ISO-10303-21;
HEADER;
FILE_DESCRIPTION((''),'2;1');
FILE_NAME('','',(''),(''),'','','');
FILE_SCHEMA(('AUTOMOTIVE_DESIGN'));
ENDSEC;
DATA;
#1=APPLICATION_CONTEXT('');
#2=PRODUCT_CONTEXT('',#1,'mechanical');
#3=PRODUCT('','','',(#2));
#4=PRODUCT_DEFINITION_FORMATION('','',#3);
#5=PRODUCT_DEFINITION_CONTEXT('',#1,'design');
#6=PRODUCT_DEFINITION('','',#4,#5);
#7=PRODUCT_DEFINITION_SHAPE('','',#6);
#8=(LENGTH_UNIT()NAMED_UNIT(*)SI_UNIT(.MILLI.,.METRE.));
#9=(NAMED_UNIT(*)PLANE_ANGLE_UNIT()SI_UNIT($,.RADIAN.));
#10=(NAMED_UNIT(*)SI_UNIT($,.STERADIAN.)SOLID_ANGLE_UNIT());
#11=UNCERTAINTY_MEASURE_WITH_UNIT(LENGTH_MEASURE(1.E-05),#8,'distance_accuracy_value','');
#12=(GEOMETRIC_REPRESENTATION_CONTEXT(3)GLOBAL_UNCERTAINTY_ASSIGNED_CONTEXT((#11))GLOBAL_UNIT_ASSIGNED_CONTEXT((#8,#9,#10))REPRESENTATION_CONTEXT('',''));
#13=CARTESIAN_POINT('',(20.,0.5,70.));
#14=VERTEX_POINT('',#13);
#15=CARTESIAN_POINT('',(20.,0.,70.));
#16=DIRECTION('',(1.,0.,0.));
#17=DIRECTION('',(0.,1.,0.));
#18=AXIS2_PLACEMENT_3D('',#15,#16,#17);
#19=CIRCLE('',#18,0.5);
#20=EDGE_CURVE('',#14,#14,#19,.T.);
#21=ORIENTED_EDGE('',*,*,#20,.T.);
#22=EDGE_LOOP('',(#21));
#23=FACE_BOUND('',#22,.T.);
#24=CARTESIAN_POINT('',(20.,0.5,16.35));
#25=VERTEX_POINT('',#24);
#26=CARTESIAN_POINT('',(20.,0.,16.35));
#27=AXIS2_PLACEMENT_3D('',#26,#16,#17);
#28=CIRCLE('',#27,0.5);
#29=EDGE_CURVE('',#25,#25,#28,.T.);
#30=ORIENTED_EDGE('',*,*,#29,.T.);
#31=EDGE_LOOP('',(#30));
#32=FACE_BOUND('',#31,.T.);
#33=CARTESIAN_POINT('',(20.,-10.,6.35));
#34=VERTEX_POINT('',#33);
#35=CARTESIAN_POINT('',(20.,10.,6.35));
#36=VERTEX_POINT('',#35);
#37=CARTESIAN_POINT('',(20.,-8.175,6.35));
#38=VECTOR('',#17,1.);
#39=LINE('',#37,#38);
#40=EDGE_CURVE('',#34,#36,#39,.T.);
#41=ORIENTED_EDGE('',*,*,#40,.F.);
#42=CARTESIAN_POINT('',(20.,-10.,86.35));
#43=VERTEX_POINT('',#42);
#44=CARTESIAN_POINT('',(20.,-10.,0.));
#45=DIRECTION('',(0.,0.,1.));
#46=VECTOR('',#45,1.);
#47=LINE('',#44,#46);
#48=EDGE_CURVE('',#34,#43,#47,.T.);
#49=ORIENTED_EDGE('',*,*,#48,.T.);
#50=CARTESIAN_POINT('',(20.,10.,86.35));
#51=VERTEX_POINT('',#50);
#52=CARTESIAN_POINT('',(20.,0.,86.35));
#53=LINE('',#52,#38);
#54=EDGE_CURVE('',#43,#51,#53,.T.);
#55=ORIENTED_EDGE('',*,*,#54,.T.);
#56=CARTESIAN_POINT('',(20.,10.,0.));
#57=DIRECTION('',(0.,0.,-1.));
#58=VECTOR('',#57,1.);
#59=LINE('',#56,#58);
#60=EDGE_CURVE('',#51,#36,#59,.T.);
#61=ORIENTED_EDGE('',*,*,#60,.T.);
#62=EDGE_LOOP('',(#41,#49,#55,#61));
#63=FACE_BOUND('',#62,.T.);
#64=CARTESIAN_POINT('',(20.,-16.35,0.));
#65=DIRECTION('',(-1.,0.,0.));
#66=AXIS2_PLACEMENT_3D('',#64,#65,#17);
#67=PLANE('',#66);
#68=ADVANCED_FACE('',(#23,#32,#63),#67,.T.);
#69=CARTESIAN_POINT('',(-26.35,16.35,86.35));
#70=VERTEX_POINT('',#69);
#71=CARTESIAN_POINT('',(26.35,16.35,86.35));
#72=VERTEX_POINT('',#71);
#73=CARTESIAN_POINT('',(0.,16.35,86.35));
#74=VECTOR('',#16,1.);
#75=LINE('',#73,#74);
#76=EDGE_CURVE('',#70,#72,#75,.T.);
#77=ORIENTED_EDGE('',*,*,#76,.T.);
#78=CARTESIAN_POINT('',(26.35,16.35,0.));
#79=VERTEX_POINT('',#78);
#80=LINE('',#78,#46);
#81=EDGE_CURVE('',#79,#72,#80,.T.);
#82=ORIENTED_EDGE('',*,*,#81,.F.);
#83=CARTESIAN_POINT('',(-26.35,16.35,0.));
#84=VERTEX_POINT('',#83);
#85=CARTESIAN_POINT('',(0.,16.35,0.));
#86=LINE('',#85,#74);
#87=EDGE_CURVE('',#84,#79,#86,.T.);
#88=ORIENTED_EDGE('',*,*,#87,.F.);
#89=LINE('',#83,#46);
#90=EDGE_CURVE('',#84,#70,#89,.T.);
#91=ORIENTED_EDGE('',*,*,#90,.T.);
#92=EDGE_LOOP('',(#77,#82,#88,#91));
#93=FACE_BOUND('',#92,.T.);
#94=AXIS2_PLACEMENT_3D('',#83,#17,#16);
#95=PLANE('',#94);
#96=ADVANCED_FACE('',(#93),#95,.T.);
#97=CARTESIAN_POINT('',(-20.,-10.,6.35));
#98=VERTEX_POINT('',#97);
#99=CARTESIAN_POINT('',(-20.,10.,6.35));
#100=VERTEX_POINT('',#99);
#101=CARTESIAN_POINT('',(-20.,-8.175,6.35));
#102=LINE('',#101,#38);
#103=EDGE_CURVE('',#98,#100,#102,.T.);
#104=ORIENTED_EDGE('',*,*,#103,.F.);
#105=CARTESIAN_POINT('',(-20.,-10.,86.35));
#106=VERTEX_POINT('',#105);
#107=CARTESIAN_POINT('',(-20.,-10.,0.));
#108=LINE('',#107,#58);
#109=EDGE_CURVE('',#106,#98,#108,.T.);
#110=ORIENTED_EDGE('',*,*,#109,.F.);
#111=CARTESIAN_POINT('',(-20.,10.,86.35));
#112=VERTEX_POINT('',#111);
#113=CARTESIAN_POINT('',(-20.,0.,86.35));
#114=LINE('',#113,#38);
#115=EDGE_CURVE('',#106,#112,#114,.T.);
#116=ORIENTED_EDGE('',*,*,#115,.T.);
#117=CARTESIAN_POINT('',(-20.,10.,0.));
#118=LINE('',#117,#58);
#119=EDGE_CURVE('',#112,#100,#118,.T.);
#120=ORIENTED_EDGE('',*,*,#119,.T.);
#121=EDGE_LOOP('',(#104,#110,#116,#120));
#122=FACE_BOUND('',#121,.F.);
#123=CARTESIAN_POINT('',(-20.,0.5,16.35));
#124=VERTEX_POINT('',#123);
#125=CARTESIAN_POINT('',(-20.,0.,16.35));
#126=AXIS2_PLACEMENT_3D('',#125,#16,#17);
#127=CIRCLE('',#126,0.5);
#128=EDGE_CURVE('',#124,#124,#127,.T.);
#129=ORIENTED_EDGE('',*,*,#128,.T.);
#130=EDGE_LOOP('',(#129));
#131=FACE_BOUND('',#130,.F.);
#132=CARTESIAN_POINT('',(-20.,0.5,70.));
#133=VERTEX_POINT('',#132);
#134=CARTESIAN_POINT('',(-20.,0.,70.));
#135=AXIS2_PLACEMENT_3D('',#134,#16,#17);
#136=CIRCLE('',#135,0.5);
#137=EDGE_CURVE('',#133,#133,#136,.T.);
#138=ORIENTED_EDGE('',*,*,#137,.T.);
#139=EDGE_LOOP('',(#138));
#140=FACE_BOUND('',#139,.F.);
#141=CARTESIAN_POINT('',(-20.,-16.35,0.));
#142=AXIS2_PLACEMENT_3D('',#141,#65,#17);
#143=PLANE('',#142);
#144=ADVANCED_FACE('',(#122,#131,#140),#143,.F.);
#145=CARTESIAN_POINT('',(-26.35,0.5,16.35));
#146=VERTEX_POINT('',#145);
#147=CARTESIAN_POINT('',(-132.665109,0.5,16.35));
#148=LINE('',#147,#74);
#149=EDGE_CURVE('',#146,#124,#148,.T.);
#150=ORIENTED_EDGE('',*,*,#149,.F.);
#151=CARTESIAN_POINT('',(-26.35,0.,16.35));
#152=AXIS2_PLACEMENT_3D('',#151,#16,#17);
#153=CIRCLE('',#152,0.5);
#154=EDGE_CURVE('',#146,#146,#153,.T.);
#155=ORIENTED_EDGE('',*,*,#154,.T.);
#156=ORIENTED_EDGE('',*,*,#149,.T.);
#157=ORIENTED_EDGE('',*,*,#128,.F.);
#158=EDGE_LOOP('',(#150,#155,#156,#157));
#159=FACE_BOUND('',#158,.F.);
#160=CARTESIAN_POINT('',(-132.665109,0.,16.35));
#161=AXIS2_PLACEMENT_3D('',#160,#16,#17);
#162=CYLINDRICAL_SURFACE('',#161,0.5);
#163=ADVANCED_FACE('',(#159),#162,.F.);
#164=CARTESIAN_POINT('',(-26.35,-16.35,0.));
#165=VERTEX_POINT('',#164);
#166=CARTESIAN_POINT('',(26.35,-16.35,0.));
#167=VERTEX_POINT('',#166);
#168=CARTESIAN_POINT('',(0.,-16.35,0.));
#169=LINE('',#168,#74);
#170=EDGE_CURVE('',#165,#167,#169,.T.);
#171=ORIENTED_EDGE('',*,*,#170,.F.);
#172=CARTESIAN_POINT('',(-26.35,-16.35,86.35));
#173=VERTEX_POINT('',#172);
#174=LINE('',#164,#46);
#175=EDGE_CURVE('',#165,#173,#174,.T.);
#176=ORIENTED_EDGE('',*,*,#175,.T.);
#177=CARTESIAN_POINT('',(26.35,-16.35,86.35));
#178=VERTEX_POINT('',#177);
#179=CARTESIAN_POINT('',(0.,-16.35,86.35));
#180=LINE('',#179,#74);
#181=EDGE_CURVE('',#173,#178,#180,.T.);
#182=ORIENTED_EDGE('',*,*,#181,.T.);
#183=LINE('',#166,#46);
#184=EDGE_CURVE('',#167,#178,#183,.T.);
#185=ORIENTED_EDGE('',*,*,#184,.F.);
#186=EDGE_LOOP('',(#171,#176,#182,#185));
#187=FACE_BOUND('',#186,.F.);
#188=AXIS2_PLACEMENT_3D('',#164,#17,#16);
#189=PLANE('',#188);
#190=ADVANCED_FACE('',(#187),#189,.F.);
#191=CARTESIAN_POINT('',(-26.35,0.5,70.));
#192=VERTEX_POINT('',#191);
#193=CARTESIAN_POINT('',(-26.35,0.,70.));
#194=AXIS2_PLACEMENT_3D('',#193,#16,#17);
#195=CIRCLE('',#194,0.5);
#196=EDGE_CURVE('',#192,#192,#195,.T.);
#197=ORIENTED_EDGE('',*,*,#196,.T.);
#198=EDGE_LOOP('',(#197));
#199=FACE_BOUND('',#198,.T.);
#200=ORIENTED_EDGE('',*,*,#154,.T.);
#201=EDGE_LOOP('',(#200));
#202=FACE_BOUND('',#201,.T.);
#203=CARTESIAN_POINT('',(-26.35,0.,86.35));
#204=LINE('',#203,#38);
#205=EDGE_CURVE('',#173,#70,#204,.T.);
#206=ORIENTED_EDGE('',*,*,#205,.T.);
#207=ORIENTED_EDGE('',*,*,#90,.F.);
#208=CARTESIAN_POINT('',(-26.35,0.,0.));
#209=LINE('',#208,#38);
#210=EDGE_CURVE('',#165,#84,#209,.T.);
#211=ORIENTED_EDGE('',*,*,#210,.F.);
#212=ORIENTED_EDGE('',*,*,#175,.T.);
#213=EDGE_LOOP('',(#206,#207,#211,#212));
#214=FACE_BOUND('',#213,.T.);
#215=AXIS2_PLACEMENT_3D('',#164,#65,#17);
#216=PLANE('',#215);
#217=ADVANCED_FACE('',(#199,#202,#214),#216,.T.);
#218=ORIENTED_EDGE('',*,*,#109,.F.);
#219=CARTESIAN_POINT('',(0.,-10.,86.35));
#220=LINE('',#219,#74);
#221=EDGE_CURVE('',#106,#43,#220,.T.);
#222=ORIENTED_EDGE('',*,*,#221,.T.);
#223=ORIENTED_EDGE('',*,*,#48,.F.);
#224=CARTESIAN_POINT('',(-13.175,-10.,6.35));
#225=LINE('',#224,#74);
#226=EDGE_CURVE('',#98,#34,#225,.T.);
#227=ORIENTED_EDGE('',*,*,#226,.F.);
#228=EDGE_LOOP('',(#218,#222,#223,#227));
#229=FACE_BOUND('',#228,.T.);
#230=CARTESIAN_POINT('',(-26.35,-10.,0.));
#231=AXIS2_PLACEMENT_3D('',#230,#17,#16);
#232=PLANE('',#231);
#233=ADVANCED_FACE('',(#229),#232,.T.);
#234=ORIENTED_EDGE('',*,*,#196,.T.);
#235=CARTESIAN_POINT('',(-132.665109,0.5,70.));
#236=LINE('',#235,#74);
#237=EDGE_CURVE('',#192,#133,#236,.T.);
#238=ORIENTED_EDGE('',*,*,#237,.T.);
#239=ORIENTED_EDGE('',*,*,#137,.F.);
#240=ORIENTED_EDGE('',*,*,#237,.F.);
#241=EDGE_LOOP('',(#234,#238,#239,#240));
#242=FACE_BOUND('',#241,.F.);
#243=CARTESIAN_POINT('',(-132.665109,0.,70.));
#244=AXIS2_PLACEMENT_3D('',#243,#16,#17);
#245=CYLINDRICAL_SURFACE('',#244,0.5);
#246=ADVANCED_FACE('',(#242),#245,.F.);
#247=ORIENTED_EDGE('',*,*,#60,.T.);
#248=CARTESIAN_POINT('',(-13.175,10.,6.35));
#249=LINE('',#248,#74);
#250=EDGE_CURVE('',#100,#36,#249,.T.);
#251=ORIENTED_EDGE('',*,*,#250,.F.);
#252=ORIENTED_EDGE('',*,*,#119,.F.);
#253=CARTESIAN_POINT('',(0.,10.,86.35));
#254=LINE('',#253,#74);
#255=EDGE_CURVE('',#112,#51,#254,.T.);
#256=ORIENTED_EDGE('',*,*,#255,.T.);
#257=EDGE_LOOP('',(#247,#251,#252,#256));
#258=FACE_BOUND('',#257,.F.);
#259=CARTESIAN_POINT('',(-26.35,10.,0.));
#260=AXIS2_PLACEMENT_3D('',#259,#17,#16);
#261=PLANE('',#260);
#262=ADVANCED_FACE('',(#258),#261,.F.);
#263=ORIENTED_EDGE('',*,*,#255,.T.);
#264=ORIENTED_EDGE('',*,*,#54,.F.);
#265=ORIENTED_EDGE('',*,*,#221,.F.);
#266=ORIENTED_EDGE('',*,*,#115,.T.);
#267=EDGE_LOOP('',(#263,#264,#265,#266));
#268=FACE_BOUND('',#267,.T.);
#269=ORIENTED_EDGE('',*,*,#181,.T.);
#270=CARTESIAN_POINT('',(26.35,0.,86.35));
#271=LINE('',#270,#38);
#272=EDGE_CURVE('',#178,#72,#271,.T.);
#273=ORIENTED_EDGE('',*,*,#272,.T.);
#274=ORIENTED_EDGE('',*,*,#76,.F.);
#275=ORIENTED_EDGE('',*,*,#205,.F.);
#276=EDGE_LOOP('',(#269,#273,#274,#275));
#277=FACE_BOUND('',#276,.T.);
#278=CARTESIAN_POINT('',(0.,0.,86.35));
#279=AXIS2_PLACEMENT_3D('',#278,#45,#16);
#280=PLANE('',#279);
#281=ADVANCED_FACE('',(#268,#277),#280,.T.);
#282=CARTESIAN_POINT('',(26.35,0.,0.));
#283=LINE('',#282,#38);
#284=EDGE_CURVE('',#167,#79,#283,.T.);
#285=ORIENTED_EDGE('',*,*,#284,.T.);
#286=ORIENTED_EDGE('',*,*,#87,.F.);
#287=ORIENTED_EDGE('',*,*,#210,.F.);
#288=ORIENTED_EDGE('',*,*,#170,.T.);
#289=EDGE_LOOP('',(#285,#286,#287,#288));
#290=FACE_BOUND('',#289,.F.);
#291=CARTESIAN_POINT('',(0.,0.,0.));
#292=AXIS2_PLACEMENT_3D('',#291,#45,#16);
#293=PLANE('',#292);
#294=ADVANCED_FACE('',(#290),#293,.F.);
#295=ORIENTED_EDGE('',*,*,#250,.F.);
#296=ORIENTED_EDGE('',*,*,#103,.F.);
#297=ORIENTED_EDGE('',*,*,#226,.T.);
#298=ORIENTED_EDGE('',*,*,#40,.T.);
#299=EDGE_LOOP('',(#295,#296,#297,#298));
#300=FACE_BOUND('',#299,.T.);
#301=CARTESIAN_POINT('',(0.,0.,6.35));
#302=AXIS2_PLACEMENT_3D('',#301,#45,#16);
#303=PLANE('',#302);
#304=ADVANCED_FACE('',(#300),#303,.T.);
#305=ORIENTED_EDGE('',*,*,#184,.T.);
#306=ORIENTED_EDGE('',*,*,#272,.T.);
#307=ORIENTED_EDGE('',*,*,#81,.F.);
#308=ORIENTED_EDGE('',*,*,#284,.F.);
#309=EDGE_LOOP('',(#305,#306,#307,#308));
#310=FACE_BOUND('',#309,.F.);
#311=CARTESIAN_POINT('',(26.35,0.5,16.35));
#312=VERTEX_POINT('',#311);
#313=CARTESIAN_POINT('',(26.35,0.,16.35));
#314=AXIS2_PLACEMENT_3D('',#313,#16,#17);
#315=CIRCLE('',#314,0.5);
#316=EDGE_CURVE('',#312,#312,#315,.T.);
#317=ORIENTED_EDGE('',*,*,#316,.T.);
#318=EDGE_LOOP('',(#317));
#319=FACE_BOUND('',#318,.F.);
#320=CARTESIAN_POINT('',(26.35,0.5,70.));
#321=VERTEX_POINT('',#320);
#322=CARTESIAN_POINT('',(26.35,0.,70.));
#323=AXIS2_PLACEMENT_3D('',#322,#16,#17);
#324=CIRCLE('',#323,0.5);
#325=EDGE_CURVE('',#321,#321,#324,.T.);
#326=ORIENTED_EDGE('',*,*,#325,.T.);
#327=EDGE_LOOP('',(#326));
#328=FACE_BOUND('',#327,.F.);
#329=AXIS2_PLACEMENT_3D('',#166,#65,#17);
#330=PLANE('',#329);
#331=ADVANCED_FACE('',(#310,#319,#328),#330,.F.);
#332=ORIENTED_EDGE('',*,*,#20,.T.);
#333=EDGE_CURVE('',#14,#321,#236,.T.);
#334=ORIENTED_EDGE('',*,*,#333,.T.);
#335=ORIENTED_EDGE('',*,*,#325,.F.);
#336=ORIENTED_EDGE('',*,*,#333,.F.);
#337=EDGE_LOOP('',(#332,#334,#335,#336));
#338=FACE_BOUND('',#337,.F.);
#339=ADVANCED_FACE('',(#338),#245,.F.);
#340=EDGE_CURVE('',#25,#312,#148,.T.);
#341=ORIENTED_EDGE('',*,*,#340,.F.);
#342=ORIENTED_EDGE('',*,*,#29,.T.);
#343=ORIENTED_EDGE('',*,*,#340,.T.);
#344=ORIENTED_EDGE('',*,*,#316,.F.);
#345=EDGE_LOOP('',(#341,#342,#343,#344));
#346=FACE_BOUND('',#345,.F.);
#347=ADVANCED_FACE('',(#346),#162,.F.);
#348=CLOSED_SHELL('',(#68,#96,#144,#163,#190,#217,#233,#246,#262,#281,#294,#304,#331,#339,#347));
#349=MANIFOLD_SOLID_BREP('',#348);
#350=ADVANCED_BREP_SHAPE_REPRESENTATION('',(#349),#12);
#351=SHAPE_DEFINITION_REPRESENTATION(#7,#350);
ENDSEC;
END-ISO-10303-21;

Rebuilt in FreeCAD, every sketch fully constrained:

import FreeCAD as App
import Part
import Sketcher
from FreeCAD import Vector


def faces_at(feature, points):
    """Names of the faces that lie closest to the given points."""
    faces = feature.Shape.Faces
    near = lambda p: min(range(len(faces)), key=lambda i: faces[i].distToShape(Part.Vertex(*p))[0])
    return sorted({f"Face{near(p) + 1}" for p in points})


def add_polygon(sketch, points):
    """Adds a closed chain of lines whose ends are joined by coincident constraints."""
    first, n = sketch.GeometryCount, len(points)
    for a, b in zip(points, points[1:] + points[:1]):
        sketch.addGeometry(Part.LineSegment(App.Vector(*a, 0), App.Vector(*b, 0)), False)
    for i in range(n):
        sketch.addConstraint(Sketcher.Constraint("Coincident", first + i, 2, first + (i + 1) % n, 1))

doc = App.newDocument("Part")
body = doc.addObject("PartDesign::Body", "Body")

# Sketch on XY plane
sketch1 = body.newObject("Sketcher::SketchObject", "Sketch")
sketch1.AttachmentSupport = (doc.getObject("XY_Plane"), [""])
sketch1.MapMode = "FlatFace"
add_polygon(sketch1, [(-26, 16), (-26, -16), (26, -16), (26, 16)])  # lines 0-3
sketch1.addConstraint([
    Sketcher.Constraint("Vertical", 0),
    Sketcher.Constraint("Horizontal", 1),
    Sketcher.Constraint("Vertical", 2),
    Sketcher.Constraint("Horizontal", 3),
    Sketcher.Constraint("Symmetric", 0, 2, 2, 2, -1, 1),
    Sketcher.Constraint("DistanceX", 1, 1, 1, 2, 52.7),
    Sketcher.Constraint("DistanceY", 0, 2, 0, 1, 32.7),
])
pad1 = body.newObject("PartDesign::Pad", "Pad")
pad1.Profile = sketch1
pad1.Length = 86.35
doc.recompute()

thickness = body.newObject("PartDesign::Thickness", "Thickness")
thickness.Base = (pad1, faces_at(pad1, [(0, 0, 86.35)]))
thickness.Value = 6.35
thickness.Reversed = True
thickness.Join = "Arc"

# Sketch on YZ plane
sketch2 = body.newObject("Sketcher::SketchObject", "Sketch001")
sketch2.AttachmentSupport = (doc.getObject("YZ_Plane"), [""])
sketch2.MapMode = "FlatFace"
sketch2.AttachmentOffset = App.Placement(Vector(0, 0, -26.35), App.Rotation())
sketch2.addGeometry(Part.Circle(Vector(0, 70, 0), Vector(0, 0, 1), 0.5), False)
sketch2.addConstraint([
    Sketcher.Constraint("PointOnObject", 0, 3, -2),
    Sketcher.Constraint("Diameter", 0, 1.0),
    Sketcher.Constraint("DistanceY", -1, 1, 0, 3, 70.0),
])
doc.recompute()
hole = body.newObject("PartDesign::Hole", "Hole")
hole.Profile = sketch2
hole.ThreadType = "None"
hole.Diameter = 1
hole.DepthType = "ThroughAll"
hole.Reversed = True

# Sketch on YZ plane
sketch3 = body.newObject("Sketcher::SketchObject", "Sketch002")
sketch3.AttachmentSupport = (doc.getObject("YZ_Plane"), [""])
sketch3.MapMode = "FlatFace"
sketch3.AttachmentOffset = App.Placement(Vector(0, 0, -26.35), App.Rotation())
sketch3.addGeometry(Part.Circle(Vector(0, 16.4, 0), Vector(0, 0, 1), 0.5), False)
sketch3.addConstraint([
    Sketcher.Constraint("PointOnObject", 0, 3, -2),
    Sketcher.Constraint("Diameter", 0, 1.0),
    Sketcher.Constraint("DistanceY", -1, 1, 0, 3, 16.35),
])
doc.recompute()
hole2 = body.newObject("PartDesign::Hole", "Hole001")
hole2.Profile = sketch3
hole2.ThreadType = "None"
hole2.Diameter = 1
hole2.DepthType = "ThroughAll"
hole2.Reversed = True

doc.recompute()
